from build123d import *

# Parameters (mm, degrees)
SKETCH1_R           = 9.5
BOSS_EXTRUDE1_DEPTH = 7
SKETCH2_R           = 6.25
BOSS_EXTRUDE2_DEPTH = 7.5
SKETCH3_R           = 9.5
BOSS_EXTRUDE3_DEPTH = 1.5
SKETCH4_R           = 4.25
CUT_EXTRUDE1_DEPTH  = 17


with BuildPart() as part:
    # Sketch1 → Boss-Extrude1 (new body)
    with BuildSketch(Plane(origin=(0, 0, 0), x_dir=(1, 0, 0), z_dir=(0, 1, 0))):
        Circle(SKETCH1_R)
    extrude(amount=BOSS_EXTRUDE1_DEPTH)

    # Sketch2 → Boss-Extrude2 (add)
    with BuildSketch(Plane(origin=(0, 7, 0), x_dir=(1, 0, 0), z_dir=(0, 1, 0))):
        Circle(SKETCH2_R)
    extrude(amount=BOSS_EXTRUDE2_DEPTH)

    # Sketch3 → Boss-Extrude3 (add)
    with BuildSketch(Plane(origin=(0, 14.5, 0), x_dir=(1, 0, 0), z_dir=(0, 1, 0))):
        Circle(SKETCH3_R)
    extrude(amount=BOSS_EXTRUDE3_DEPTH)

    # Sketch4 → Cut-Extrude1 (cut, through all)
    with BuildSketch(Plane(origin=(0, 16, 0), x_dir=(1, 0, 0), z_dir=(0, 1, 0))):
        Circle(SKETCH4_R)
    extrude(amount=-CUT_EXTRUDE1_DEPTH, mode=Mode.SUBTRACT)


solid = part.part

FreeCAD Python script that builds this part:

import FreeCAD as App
import Part
import Sketcher
from FreeCAD import Vector
Q = App.Units.Quantity

doc = App.newDocument("Part")
body = doc.addObject("PartDesign::Body", "Body")

sketch1 = doc.addObject("Sketcher::SketchObject", "Sketch")
body.addObject(sketch1)
sketch1.AttachmentSupport = (doc.XZ_Plane, [""])
sketch1.MapMode = "FlatFace"
sketch1.addGeometry(Part.Circle(Vector(0, 0, 0), Vector(0, 0, 1), 9.5), False)
sketch1.addConstraint(Sketcher.Constraint("Coincident", 0, 3, -1, 1))
sketch1.addConstraint(Sketcher.Constraint("Diameter", 0, Q("19 mm")))
pad1 = doc.addObject("PartDesign::Pad", "Pad")
body.addObject(pad1)
pad1.Profile = sketch1
pad1.Length = 7
pad1.Reversed = True

sketch2 = doc.addObject("Sketcher::SketchObject", "Sketch001")
body.addObject(sketch2)
sketch2.AttachmentSupport = (doc.XZ_Plane, [""])
sketch2.MapMode = "FlatFace"
sketch2.AttachmentOffset = App.Placement(Vector(0, 0, -7), App.Rotation())
sketch2.addGeometry(Part.Circle(Vector(0, 0, 0), Vector(0, 0, 1), 6.25), False)
sketch2.addConstraint(Sketcher.Constraint("Coincident", 0, 3, -1, 1))
sketch2.addConstraint(Sketcher.Constraint("Diameter", 0, Q("12.5 mm")))
pad2 = doc.addObject("PartDesign::Pad", "Pad001")
body.addObject(pad2)
pad2.Profile = sketch2
pad2.Length = 7.5
pad2.Reversed = True

sketch3 = doc.addObject("Sketcher::SketchObject", "Sketch002")
body.addObject(sketch3)
sketch3.AttachmentSupport = (doc.XZ_Plane, [""])
sketch3.MapMode = "FlatFace"
sketch3.AttachmentOffset = App.Placement(Vector(0, 0, -14.5), App.Rotation())
sketch3.addGeometry(Part.Circle(Vector(0, 0, 0), Vector(0, 0, 1), 9.5), False)
sketch3.addConstraint(Sketcher.Constraint("Coincident", 0, 3, -1, 1))
sketch3.addConstraint(Sketcher.Constraint("Diameter", 0, Q("19 mm")))
pad3 = doc.addObject("PartDesign::Pad", "Pad002")
body.addObject(pad3)
pad3.Profile = sketch3
pad3.Length = 1.5
pad3.Reversed = True

sketch4 = doc.addObject("Sketcher::SketchObject", "Sketch003")
body.addObject(sketch4)
sketch4.AttachmentSupport = (doc.XZ_Plane, [""])
sketch4.MapMode = "FlatFace"
sketch4.AttachmentOffset = App.Placement(Vector(0, 0, -16), App.Rotation())
sketch4.addGeometry(Part.Circle(Vector(0, 0, 0), Vector(0, 0, 1), 4.25), False)
sketch4.addConstraint(Sketcher.Constraint("Coincident", 0, 3, -1, 1))
sketch4.addConstraint(Sketcher.Constraint("Diameter", 0, Q("8.5 mm")))
pocket1 = doc.addObject("PartDesign::Pocket", "Pocket")
body.addObject(pocket1)
pocket1.Profile = sketch4
pocket1.Type = "ThroughAll"
pocket1.Reversed = True

doc.recompute()
